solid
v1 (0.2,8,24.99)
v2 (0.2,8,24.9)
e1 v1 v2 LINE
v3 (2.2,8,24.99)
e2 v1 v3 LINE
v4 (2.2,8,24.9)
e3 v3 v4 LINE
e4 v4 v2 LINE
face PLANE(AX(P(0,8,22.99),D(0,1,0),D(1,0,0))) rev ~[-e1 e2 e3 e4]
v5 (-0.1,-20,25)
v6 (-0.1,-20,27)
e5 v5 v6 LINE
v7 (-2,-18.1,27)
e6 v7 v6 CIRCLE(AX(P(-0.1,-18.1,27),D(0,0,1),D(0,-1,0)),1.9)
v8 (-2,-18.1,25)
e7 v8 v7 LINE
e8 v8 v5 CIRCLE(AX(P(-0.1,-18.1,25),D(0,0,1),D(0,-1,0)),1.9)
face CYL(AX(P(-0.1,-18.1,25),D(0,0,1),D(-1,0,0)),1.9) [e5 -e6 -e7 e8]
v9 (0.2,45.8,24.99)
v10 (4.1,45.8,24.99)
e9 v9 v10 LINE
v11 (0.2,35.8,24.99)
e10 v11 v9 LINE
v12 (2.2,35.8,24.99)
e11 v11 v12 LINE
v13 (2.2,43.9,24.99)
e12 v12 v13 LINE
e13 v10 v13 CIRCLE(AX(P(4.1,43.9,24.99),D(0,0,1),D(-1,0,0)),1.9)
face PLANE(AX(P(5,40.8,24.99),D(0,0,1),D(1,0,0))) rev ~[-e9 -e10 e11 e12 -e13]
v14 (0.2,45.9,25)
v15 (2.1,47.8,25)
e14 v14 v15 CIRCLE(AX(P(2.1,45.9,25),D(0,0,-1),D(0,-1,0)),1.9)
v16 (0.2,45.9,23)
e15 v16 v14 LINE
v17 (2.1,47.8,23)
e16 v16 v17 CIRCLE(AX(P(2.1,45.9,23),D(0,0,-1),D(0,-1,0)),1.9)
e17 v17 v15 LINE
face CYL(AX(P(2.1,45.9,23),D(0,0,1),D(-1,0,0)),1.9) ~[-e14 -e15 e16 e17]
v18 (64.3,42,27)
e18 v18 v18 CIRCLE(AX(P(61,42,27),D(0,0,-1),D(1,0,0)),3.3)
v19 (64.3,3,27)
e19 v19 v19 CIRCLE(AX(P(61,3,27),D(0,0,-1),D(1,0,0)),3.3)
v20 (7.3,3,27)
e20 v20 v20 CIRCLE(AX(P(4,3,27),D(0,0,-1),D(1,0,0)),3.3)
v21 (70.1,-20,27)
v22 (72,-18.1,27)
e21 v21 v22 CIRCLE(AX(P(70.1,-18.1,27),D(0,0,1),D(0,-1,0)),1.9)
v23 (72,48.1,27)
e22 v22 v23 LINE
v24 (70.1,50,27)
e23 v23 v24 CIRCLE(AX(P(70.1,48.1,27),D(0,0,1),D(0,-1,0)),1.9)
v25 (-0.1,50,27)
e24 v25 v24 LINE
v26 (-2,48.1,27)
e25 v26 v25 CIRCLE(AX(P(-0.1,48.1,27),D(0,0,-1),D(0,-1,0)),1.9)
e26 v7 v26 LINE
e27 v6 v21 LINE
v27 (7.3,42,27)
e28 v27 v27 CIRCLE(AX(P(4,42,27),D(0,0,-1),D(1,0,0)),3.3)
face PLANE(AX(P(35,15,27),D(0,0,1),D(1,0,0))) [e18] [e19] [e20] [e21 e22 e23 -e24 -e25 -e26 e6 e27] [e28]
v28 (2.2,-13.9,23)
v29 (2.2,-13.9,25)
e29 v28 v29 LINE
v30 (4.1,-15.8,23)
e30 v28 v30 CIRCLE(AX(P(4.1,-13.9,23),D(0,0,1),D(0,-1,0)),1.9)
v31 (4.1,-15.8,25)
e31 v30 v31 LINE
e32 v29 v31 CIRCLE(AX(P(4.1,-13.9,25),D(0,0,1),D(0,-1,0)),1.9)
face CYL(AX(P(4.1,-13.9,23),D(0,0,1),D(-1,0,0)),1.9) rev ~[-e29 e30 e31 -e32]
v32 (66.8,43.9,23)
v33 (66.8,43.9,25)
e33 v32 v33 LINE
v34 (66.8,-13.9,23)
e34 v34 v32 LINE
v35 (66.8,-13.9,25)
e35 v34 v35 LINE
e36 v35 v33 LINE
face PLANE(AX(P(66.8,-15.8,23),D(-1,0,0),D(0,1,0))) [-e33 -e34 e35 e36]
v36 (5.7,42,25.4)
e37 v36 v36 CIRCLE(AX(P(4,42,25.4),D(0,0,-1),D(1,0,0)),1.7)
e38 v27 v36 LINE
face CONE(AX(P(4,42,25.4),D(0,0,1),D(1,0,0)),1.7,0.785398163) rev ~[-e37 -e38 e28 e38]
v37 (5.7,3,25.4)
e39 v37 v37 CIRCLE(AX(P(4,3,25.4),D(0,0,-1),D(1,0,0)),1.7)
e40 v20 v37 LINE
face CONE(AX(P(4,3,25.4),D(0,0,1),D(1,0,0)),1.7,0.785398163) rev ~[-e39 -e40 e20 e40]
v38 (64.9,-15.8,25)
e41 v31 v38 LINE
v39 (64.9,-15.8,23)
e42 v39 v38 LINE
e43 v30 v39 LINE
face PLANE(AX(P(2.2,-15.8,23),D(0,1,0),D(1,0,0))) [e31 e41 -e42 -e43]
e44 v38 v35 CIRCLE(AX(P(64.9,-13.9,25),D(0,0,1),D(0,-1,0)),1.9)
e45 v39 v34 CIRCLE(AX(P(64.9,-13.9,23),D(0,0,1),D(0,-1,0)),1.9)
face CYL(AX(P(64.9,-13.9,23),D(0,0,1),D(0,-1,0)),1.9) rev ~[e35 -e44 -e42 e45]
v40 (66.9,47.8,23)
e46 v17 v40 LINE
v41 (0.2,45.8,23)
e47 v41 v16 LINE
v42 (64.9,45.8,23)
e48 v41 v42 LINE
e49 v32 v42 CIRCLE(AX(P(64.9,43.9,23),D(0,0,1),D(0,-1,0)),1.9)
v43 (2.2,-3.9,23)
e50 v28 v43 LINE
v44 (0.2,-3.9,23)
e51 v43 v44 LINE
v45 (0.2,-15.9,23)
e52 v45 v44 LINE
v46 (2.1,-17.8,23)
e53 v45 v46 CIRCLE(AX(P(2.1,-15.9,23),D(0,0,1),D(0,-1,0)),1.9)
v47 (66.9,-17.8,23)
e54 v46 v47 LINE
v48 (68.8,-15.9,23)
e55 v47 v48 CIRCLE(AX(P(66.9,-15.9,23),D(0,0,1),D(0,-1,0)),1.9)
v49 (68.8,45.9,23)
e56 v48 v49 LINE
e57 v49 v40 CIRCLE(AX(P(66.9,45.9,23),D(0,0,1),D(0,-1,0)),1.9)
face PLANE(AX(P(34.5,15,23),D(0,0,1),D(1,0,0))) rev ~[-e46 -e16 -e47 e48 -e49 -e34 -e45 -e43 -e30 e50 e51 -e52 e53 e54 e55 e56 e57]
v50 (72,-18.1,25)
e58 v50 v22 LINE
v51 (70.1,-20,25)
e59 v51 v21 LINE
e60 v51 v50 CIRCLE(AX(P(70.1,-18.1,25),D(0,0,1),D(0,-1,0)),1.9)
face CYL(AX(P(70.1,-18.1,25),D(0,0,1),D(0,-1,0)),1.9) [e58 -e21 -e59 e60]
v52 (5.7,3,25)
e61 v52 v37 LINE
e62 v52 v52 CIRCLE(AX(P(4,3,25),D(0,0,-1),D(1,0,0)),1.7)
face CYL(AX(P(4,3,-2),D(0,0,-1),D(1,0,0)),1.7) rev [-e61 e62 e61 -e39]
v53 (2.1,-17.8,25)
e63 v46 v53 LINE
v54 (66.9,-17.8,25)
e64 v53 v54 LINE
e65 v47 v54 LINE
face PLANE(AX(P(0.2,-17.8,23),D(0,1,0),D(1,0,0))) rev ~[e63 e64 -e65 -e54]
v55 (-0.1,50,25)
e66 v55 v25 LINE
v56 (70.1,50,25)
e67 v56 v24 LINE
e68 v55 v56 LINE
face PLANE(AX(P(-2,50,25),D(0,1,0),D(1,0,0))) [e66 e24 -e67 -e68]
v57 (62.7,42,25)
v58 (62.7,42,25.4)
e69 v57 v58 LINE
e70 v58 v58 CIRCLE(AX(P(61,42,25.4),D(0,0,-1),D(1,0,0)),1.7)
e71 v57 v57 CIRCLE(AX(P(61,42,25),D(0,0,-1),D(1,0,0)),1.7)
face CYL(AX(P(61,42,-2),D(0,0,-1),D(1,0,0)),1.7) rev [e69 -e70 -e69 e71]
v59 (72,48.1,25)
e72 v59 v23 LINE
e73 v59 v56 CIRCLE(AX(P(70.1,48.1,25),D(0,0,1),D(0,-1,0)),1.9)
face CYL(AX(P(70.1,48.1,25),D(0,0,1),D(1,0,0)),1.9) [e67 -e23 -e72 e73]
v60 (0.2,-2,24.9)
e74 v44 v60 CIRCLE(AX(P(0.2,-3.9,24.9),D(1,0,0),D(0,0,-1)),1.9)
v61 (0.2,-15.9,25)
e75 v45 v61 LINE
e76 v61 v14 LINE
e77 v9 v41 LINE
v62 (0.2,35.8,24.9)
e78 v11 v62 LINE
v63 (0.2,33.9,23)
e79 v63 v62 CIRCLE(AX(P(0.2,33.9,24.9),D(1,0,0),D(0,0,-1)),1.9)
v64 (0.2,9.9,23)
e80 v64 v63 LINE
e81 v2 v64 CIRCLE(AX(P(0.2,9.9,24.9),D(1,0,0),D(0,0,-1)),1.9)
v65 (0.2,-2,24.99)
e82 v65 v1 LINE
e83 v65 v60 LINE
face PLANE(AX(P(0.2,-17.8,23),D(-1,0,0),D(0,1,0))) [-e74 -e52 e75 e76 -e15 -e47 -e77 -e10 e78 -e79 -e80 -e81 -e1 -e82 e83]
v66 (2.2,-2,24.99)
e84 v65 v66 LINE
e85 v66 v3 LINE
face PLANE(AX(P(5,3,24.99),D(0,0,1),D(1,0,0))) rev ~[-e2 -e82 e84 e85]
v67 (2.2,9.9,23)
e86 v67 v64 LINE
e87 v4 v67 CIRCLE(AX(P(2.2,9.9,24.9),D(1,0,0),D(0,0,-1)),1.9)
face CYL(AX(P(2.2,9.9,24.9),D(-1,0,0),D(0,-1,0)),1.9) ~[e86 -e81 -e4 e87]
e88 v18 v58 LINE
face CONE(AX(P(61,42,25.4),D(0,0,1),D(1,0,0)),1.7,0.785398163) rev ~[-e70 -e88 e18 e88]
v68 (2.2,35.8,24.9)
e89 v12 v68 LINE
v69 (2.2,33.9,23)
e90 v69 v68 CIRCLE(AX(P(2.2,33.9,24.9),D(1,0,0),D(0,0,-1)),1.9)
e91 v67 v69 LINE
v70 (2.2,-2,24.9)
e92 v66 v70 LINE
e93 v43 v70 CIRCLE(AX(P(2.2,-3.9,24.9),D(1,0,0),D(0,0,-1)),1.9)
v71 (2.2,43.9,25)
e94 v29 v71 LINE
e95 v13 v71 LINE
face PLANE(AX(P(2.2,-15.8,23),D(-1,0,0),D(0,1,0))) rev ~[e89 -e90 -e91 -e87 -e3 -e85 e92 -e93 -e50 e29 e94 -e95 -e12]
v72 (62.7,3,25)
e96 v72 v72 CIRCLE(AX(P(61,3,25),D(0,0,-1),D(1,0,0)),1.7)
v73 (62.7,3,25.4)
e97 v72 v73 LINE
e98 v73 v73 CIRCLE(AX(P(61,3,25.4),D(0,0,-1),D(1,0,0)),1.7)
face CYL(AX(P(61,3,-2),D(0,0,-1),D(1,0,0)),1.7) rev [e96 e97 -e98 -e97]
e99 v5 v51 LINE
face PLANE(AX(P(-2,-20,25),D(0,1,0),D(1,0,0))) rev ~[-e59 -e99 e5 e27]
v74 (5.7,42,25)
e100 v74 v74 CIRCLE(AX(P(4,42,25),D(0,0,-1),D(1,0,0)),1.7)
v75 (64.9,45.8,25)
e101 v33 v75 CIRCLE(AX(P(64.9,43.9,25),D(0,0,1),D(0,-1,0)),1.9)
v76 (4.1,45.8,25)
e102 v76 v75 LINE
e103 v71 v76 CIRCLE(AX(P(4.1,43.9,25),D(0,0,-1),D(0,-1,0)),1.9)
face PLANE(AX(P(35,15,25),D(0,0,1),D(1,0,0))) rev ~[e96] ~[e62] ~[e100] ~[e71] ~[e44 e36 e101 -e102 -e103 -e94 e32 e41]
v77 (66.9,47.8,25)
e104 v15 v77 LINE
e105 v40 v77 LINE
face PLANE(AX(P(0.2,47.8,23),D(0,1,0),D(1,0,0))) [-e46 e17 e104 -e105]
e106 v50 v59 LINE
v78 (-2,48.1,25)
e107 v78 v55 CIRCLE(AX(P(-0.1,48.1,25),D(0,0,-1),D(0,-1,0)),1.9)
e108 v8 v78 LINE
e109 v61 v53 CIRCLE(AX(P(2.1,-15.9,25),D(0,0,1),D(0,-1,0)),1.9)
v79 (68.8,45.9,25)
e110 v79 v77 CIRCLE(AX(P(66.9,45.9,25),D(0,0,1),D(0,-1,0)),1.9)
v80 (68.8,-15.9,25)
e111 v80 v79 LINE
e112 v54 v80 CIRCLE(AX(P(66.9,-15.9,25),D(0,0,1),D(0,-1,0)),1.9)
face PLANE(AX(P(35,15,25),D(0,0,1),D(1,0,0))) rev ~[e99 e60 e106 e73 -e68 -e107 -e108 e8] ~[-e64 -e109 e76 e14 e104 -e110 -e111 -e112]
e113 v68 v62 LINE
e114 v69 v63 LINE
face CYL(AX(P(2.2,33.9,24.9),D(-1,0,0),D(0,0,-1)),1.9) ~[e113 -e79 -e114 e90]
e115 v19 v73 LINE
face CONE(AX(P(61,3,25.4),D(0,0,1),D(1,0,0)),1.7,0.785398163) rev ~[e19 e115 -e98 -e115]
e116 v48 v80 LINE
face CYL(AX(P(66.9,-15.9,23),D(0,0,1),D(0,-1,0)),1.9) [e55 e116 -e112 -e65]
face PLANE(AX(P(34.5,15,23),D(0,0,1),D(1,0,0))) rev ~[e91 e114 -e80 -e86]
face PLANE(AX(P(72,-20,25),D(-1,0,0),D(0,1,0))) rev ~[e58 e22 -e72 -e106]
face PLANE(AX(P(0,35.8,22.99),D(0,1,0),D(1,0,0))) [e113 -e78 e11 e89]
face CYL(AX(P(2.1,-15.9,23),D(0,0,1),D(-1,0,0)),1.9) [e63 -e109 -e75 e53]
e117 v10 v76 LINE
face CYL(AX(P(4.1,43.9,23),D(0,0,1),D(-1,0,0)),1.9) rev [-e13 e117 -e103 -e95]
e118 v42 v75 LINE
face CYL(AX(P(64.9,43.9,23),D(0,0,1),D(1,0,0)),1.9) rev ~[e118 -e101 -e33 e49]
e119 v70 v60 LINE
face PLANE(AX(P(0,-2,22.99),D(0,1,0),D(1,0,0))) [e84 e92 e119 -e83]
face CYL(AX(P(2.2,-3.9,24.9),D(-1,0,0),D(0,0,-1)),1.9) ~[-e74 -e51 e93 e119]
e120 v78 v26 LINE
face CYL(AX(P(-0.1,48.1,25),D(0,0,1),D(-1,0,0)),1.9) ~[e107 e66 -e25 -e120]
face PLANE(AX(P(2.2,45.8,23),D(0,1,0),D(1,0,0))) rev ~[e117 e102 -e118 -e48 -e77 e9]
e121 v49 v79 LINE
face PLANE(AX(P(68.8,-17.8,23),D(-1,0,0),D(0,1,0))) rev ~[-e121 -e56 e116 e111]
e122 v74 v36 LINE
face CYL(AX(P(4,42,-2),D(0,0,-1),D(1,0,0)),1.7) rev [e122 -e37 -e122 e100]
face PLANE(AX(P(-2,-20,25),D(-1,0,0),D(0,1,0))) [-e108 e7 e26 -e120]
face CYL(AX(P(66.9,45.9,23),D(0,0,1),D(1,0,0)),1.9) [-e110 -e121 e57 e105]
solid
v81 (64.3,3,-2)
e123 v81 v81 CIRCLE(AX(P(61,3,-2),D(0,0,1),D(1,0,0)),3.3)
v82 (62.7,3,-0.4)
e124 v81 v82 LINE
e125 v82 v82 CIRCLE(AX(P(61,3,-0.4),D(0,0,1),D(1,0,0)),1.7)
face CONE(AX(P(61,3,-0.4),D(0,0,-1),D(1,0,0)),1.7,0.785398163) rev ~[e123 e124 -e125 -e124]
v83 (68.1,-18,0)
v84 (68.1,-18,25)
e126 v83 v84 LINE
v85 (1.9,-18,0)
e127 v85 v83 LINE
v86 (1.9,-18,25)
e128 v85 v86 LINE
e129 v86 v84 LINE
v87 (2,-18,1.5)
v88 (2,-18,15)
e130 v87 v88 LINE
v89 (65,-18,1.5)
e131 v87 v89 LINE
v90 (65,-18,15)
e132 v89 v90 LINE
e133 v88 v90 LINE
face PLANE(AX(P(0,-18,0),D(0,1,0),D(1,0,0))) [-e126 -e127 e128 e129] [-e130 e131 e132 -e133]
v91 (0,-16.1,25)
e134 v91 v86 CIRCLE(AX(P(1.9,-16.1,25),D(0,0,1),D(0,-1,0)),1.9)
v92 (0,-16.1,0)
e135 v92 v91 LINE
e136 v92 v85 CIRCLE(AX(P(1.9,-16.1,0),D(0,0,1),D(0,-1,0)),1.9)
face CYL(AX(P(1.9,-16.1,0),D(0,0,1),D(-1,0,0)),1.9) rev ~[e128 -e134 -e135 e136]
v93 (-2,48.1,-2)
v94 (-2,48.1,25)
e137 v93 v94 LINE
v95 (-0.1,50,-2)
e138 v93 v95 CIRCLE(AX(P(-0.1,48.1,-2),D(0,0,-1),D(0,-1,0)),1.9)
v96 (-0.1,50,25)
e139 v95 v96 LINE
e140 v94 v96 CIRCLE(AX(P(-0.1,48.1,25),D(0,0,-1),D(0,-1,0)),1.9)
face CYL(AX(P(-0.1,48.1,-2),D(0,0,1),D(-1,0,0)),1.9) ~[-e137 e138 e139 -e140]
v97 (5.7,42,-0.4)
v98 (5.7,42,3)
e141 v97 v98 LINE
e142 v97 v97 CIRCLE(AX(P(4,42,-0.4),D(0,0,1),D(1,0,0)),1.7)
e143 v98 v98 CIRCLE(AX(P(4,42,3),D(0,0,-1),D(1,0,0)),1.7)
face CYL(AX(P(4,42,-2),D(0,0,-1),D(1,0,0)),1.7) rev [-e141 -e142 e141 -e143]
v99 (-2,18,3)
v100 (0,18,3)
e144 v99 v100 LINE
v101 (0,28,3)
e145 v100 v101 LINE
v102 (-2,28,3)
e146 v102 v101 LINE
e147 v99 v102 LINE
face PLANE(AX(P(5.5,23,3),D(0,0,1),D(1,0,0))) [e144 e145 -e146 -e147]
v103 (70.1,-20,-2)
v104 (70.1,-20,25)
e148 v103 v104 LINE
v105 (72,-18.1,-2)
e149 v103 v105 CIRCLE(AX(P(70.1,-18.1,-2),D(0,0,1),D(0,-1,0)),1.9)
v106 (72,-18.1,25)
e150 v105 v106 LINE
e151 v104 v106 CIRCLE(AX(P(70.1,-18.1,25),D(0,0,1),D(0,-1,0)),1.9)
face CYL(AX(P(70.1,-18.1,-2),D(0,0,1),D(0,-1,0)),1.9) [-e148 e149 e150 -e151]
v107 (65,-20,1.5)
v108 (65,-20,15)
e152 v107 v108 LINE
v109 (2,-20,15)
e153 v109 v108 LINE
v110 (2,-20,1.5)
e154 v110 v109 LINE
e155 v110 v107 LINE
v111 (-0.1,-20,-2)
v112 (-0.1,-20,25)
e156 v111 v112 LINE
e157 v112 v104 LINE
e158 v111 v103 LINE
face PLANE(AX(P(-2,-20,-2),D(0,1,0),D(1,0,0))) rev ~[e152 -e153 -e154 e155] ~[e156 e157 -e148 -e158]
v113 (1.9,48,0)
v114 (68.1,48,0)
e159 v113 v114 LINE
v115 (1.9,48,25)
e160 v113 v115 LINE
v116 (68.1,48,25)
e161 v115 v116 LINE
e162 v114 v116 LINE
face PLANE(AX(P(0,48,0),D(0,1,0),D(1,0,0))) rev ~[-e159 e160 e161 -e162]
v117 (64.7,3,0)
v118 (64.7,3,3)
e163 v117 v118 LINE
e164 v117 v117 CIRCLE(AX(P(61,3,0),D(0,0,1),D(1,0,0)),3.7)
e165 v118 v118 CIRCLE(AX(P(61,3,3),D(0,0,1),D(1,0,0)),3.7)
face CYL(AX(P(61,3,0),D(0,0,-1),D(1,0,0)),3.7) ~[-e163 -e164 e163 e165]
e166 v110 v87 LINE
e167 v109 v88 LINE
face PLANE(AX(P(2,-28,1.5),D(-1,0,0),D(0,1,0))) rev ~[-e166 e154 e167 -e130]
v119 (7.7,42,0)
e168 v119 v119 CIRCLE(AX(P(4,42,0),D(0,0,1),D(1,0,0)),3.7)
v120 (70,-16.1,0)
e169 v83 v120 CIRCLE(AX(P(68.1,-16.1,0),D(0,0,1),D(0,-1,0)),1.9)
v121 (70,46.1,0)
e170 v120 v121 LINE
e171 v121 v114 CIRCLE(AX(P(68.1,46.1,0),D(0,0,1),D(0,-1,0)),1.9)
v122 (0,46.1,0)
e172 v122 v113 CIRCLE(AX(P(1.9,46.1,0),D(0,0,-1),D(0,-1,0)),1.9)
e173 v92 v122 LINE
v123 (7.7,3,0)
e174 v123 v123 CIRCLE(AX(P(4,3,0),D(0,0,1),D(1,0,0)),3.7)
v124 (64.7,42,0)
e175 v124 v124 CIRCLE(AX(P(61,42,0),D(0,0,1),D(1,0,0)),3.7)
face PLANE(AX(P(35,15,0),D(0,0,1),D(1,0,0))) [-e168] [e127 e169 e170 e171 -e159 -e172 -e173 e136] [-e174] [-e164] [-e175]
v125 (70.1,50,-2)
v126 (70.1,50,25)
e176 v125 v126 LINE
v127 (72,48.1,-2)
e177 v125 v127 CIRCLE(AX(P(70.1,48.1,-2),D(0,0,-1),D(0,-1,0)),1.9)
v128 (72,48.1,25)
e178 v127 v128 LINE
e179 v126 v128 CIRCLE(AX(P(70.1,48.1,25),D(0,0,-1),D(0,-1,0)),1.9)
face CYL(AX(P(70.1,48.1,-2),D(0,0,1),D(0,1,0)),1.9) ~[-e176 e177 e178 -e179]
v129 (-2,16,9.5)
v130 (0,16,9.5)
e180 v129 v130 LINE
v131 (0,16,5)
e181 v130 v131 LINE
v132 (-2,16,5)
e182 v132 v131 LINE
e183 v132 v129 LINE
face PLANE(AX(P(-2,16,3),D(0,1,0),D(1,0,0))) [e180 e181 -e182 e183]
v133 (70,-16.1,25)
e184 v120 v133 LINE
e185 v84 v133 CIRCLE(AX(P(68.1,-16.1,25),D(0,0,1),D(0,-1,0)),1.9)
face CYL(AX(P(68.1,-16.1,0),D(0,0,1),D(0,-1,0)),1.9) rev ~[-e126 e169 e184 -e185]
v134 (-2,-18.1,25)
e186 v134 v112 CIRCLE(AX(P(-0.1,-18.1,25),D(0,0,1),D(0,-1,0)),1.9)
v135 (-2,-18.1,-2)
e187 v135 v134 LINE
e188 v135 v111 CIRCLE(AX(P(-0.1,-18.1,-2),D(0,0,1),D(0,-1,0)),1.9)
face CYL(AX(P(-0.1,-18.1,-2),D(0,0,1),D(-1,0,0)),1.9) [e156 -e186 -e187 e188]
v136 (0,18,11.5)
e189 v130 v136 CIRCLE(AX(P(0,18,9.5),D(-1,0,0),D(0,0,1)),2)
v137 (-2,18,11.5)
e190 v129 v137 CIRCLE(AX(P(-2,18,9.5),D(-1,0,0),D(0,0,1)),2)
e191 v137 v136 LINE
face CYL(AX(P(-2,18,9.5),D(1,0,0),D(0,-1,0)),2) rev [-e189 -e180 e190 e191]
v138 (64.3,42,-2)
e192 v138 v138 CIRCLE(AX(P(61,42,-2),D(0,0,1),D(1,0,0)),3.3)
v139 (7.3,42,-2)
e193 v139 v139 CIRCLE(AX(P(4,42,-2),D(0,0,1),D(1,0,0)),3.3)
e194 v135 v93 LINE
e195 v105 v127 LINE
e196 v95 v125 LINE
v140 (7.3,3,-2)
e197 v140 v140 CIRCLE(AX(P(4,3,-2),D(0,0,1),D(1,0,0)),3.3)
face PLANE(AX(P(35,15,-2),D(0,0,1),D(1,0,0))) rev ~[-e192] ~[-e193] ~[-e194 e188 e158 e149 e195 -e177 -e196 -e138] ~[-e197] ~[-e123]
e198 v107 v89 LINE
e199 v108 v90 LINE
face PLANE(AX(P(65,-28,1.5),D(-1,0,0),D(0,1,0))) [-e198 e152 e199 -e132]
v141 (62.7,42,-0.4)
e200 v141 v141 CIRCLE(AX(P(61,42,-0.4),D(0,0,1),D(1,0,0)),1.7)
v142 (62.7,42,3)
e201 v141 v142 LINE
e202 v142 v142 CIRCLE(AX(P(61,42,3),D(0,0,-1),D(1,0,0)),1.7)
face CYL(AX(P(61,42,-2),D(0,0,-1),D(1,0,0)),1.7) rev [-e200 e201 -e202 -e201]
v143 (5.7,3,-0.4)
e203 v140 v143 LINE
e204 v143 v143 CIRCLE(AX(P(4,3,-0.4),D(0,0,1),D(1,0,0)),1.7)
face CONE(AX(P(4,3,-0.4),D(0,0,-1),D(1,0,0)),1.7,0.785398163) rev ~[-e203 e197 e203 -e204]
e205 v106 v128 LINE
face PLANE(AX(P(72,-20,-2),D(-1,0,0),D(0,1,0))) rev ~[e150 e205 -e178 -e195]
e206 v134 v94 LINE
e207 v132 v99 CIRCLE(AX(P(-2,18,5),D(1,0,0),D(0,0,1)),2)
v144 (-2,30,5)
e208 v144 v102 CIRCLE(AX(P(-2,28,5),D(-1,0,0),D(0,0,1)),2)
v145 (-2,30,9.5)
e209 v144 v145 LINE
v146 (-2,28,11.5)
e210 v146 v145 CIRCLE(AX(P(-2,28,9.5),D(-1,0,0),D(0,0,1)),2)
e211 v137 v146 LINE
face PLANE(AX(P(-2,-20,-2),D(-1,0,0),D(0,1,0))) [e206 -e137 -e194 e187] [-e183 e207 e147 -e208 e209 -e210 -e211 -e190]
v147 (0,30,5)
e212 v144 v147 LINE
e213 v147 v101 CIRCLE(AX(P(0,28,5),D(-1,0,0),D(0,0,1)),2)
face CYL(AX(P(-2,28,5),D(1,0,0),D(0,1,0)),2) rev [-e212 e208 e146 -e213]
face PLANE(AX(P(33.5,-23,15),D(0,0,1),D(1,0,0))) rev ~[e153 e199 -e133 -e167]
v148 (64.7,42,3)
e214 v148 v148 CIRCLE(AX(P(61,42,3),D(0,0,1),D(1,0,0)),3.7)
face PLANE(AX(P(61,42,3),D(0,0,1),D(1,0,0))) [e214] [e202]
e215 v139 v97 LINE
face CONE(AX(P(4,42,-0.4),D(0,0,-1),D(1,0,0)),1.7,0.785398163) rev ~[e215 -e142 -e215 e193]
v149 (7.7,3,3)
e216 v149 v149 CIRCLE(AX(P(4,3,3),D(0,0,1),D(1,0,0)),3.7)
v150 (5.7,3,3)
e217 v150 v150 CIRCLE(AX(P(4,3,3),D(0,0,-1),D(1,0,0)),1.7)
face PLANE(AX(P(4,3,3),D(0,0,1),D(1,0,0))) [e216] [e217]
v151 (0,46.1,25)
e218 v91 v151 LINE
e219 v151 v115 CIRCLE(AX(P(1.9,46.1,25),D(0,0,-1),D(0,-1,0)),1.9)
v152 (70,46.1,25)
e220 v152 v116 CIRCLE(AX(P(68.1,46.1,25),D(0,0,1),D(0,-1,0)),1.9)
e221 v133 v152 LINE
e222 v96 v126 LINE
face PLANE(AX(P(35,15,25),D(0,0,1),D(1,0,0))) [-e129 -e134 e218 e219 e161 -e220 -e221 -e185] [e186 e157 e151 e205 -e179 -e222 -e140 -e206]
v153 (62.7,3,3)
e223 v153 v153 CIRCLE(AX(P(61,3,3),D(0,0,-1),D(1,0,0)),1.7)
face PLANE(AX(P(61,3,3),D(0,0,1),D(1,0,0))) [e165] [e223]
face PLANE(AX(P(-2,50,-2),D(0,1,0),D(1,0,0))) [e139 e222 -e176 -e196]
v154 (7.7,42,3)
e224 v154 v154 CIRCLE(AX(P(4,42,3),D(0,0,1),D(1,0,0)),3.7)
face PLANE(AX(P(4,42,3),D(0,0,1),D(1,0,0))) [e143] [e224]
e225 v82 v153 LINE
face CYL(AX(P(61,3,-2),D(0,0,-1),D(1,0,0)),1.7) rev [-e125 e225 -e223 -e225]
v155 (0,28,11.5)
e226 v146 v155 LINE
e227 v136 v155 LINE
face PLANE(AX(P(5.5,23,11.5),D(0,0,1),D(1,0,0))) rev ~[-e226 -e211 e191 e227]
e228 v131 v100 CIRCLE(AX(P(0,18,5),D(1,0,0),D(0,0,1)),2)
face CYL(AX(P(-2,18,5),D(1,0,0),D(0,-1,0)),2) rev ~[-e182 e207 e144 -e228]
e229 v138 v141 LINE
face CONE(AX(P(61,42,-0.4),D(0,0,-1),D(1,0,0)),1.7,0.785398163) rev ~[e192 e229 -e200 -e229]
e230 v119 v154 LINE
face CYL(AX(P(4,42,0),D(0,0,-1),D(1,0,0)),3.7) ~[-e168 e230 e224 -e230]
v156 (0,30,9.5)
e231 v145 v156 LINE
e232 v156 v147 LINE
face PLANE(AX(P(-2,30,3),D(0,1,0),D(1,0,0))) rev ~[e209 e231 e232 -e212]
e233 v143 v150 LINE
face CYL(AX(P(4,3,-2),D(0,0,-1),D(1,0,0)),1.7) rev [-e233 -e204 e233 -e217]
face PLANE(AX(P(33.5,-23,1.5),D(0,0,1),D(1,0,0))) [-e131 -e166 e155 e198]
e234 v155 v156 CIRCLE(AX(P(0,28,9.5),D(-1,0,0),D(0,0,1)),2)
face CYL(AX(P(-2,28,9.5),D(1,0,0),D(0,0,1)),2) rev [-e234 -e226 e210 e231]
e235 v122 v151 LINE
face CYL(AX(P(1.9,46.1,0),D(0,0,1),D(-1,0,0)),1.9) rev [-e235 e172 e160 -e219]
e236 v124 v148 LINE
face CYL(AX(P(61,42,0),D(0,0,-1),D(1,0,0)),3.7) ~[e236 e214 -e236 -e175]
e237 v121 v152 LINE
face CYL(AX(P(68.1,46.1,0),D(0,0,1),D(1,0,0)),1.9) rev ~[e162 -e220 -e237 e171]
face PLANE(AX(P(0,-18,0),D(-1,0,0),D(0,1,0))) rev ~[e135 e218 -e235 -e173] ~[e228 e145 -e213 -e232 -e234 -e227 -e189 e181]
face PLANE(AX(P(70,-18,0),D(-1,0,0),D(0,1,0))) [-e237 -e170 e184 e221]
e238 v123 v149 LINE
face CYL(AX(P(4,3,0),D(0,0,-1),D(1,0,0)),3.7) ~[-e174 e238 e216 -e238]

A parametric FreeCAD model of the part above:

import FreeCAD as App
import Part
import Sketcher

V = App.Vector
Q = App.Units.Quantity


def edges_at(feature, points):
    """Names of the edges that pass closest to the given points."""
    edges = feature.Shape.Edges
    near = lambda p: min(range(len(edges)), key=lambda i: edges[i].distToShape(Part.Vertex(*p))[0])
    return sorted({f"Edge{near(p) + 1}" for p in points})

doc = App.newDocument("Part")
body = doc.addObject("PartDesign::Body", "Body")

# Sketch on XY plane
sketch1 = doc.addObject("Sketcher::SketchObject", "Sketch")
body.addObject(sketch1)
sketch1.AttachmentSupport = (doc.XY_Plane, [""])
sketch1.MapMode = "FlatFace"
sketch1.AttachmentOffset = App.Placement(V(0, 0, 1.5), App.Rotation())
sketch1.addGeometry([
    Part.LineSegment(V(2, -18, 0), V(2, -28, 0)),
    Part.LineSegment(V(2, -28, 0), V(65, -28, 0)),
    Part.LineSegment(V(65, -28, 0), V(65, -18, 0)),
    Part.LineSegment(V(65, -18, 0), V(2, -18, 0)),
], False)
sketch1.addConstraint([
    Sketcher.Constraint("Coincident", 0, 2, 1, 1),
    Sketcher.Constraint("Coincident", 1, 2, 2, 1),
    Sketcher.Constraint("Coincident", 2, 2, 3, 1),
    Sketcher.Constraint("Coincident", 3, 2, 0, 1),
    Sketcher.Constraint("Vertical", 0),
    Sketcher.Constraint("Horizontal", 1),
    Sketcher.Constraint("Vertical", 2),
    Sketcher.Constraint("Horizontal", 3),
    Sketcher.Constraint("DistanceX", 1, 1, 1, 2, Q("63 mm")),
    Sketcher.Constraint("DistanceY", 0, 2, 0, 1, Q("10 mm")),
    Sketcher.Constraint("DistanceX", -1, 1, 0, 2, Q("2 mm")),
    Sketcher.Constraint("DistanceY", 0, 2, -1, 1, Q("28 mm")),
])
pad1 = doc.addObject("PartDesign::Pad", "Pad")
body.addObject(pad1)
pad1.Profile = sketch1
pad1.Length = 13.5
body2 = doc.addObject("PartDesign::Body", "Body001")

# Sketch on XY plane
sketch2 = doc.addObject("Sketcher::SketchObject", "Sketch001")
body2.addObject(sketch2)
sketch2.AttachmentSupport = (doc.getObject("XY_Plane001"), [""])
sketch2.MapMode = "FlatFace"
sketch2.AttachmentOffset = App.Placement(V(0, 0, 3), App.Rotation())
sketch2.addGeometry([
    Part.LineSegment(V(-2, 30, 0), V(-2, 16, 0)),
    Part.LineSegment(V(-2, 16, 0), V(13, 16, 0)),
    Part.LineSegment(V(13, 16, 0), V(13, 30, 0)),
    Part.LineSegment(V(13, 30, 0), V(-2, 30, 0)),
], False)
sketch2.addConstraint([
    Sketcher.Constraint("Coincident", 0, 2, 1, 1),
    Sketcher.Constraint("Coincident", 1, 2, 2, 1),
    Sketcher.Constraint("Coincident", 2, 2, 3, 1),
    Sketcher.Constraint("Coincident", 3, 2, 0, 1),
    Sketcher.Constraint("Vertical", 0),
    Sketcher.Constraint("Horizontal", 1),
    Sketcher.Constraint("Vertical", 2),
    Sketcher.Constraint("Horizontal", 3),
    Sketcher.Constraint("DistanceX", 1, 1, 1, 2, Q("15 mm")),
    Sketcher.Constraint("DistanceY", 0, 2, 0, 1, Q("14 mm")),
    Sketcher.Constraint("DistanceX", 0, 2, -1, 1, Q("2 mm")),
    Sketcher.Constraint("DistanceY", -1, 1, 0, 2, Q("16 mm")),
])
pad2 = doc.addObject("PartDesign::Pad", "Pad001")
body2.addObject(pad2)
pad2.Profile = sketch2
pad2.Length = 8.5
body3 = doc.addObject("PartDesign::Body", "Body002")

# Sketch on XY plane
sketch3 = doc.addObject("Sketcher::SketchObject", "Sketch002")
body3.addObject(sketch3)
sketch3.AttachmentSupport = (doc.getObject("XY_Plane002"), [""])
sketch3.MapMode = "FlatFace"
sketch3.AttachmentOffset = App.Placement(V(0, 0, -2), App.Rotation())
sketch3.addGeometry(Part.Circle(V(4, 42, 0), V(0, 0, 1), 1.7), False)
sketch3.addConstraint([
    Sketcher.Constraint("Diameter", 0, Q("3.4 mm")),
    Sketcher.Constraint("DistanceX", -1, 1, 0, 3, Q("4 mm")),
    Sketcher.Constraint("DistanceY", -1, 1, 0, 3, Q("42 mm")),
])
pad3 = doc.addObject("PartDesign::Pad", "Pad002")
body3.addObject(pad3)
pad3.Profile = sketch3
pad3.Length = 35
body4 = doc.addObject("PartDesign::Body", "Body003")

# Sketch on XY plane
sketch4 = doc.addObject("Sketcher::SketchObject", "Sketch003")
body4.addObject(sketch4)
sketch4.AttachmentSupport = (doc.getObject("XY_Plane003"), [""])
sketch4.MapMode = "FlatFace"
sketch4.AttachmentOffset = App.Placement(V(0, 0, -2), App.Rotation())
sketch4.addGeometry(Part.Circle(V(61, 42, 0), V(0, 0, 1), 1.7), False)
sketch4.addConstraint([
    Sketcher.Constraint("Diameter", 0, Q("3.4 mm")),
    Sketcher.Constraint("DistanceX", -1, 1, 0, 3, Q("61 mm")),
    Sketcher.Constraint("DistanceY", -1, 1, 0, 3, Q("42 mm")),
])
pad4 = doc.addObject("PartDesign::Pad", "Pad003")
body4.addObject(pad4)
pad4.Profile = sketch4
pad4.Length = 33
body5 = doc.addObject("PartDesign::Body", "Body004")

# Sketch on XY plane
sketch5 = doc.addObject("Sketcher::SketchObject", "Sketch004")
body5.addObject(sketch5)
sketch5.AttachmentSupport = (doc.getObject("XY_Plane004"), [""])
sketch5.MapMode = "FlatFace"
sketch5.AttachmentOffset = App.Placement(V(0, 0, -2), App.Rotation())
sketch5.addGeometry(Part.Circle(V(61, 3, 0), V(0, 0, 1), 1.7), False)
sketch5.addConstraint([
    Sketcher.Constraint("Diameter", 0, Q("3.4 mm")),
    Sketcher.Constraint("DistanceX", -1, 1, 0, 3, Q("61 mm")),
    Sketcher.Constraint("DistanceY", -1, 1, 0, 3, Q("3 mm")),
])
pad5 = doc.addObject("PartDesign::Pad", "Pad004")
body5.addObject(pad5)
pad5.Profile = sketch5
pad5.Length = 35
body6 = doc.addObject("PartDesign::Body", "Body005")

# Sketch on XY plane
sketch6 = doc.addObject("Sketcher::SketchObject", "Sketch005")
body6.addObject(sketch6)
sketch6.AttachmentSupport = (doc.getObject("XY_Plane005"), [""])
sketch6.MapMode = "FlatFace"
sketch6.AttachmentOffset = App.Placement(V(0, 0, -2), App.Rotation())
sketch6.addGeometry(Part.Circle(V(4, 3, 0), V(0, 0, 1), 1.7), False)
sketch6.addConstraint([
    Sketcher.Constraint("Diameter", 0, Q("3.4 mm")),
    Sketcher.Constraint("DistanceX", -1, 1, 0, 3, Q("4 mm")),
    Sketcher.Constraint("DistanceY", -1, 1, 0, 3, Q("3 mm")),
])
pad6 = doc.addObject("PartDesign::Pad", "Pad005")
body6.addObject(pad6)
pad6.Profile = sketch6
pad6.Length = 35
body7 = doc.addObject("PartDesign::Body", "Body006")

# Sketch on XY plane
sketch7 = doc.addObject("Sketcher::SketchObject", "Sketch006")
body7.addObject(sketch7)
sketch7.AttachmentSupport = (doc.getObject("XY_Plane006"), [""])
sketch7.MapMode = "FlatFace"
sketch7.addGeometry(Part.Circle(V(4, 42, 0), V(0, 0, 1), 3.7), False)
sketch7.addConstraint([
    Sketcher.Constraint("Diameter", 0, Q("7.4 mm")),
    Sketcher.Constraint("DistanceX", -1, 1, 0, 3, Q("4 mm")),
    Sketcher.Constraint("DistanceY", -1, 1, 0, 3, Q("42 mm")),
])
pad7 = doc.addObject("PartDesign::Pad", "Pad006")
body7.addObject(pad7)
pad7.Profile = sketch7
pad7.Length = 3
body8 = doc.addObject("PartDesign::Body", "Body007")

# Sketch on XY plane
sketch8 = doc.addObject("Sketcher::SketchObject", "Sketch007")
body8.addObject(sketch8)
sketch8.AttachmentSupport = (doc.getObject("XY_Plane007"), [""])
sketch8.MapMode = "FlatFace"
sketch8.addGeometry(Part.Circle(V(61, 3, 0), V(0, 0, 1), 3.7), False)
sketch8.addConstraint([
    Sketcher.Constraint("Diameter", 0, Q("7.4 mm")),
    Sketcher.Constraint("DistanceX", -1, 1, 0, 3, Q("61 mm")),
    Sketcher.Constraint("DistanceY", -1, 1, 0, 3, Q("3 mm")),
])
pad8 = doc.addObject("PartDesign::Pad", "Pad007")
body8.addObject(pad8)
pad8.Profile = sketch8
pad8.Length = 3
body9 = doc.addObject("PartDesign::Body", "Body008")

# Sketch on XY plane
sketch9 = doc.addObject("Sketcher::SketchObject", "Sketch008")
body9.addObject(sketch9)
sketch9.AttachmentSupport = (doc.getObject("XY_Plane008"), [""])
sketch9.MapMode = "FlatFace"
sketch9.addGeometry(Part.Circle(V(61, 42, 0), V(0, 0, 1), 3.7), False)
sketch9.addConstraint([
    Sketcher.Constraint("Diameter", 0, Q("7.4 mm")),
    Sketcher.Constraint("DistanceX", -1, 1, 0, 3, Q("61 mm")),
    Sketcher.Constraint("DistanceY", -1, 1, 0, 3, Q("42 mm")),
])
pad9 = doc.addObject("PartDesign::Pad", "Pad008")
body9.addObject(pad9)
pad9.Profile = sketch9
pad9.Length = 3
body10 = doc.addObject("PartDesign::Body", "Body009")

# Sketch on XY plane
sketch10 = doc.addObject("Sketcher::SketchObject", "Sketch009")
body10.addObject(sketch10)
sketch10.AttachmentSupport = (doc.getObject("XY_Plane009"), [""])
sketch10.MapMode = "FlatFace"
sketch10.addGeometry(Part.Circle(V(4, 3, 0), V(0, 0, 1), 3.7), False)
sketch10.addConstraint([
    Sketcher.Constraint("Diameter", 0, Q("7.4 mm")),
    Sketcher.Constraint("DistanceX", -1, 1, 0, 3, Q("4 mm")),
    Sketcher.Constraint("DistanceY", -1, 1, 0, 3, Q("3 mm")),
])
pad10 = doc.addObject("PartDesign::Pad", "Pad009")
body10.addObject(pad10)
pad10.Profile = sketch10
pad10.Length = 3
body11 = doc.addObject("PartDesign::Body", "Body010")

# Sketch on XY plane
sketch11 = doc.addObject("Sketcher::SketchObject", "Sketch010")
body11.addObject(sketch11)
sketch11.AttachmentSupport = (doc.getObject("XY_Plane010"), [""])
sketch11.MapMode = "FlatFace"
sketch11.addGeometry([
    Part.LineSegment(V(0, 48, 0), V(0, -18, 0)),
    Part.LineSegment(V(0, -18, 0), V(70, -18, 0)),
    Part.LineSegment(V(70, -18, 0), V(70, 48, 0)),
    Part.LineSegment(V(70, 48, 0), V(0, 48, 0)),
], False)
sketch11.addConstraint([
    Sketcher.Constraint("Coincident", 0, 2, 1, 1),
    Sketcher.Constraint("Coincident", 1, 2, 2, 1),
    Sketcher.Constraint("Coincident", 2, 2, 3, 1),
    Sketcher.Constraint("Coincident", 3, 2, 0, 1),
    Sketcher.Constraint("Vertical", 0),
    Sketcher.Constraint("Horizontal", 1),
    Sketcher.Constraint("Vertical", 2),
    Sketcher.Constraint("Horizontal", 3),
    Sketcher.Constraint("PointOnObject", 0, 2, -2),
    Sketcher.Constraint("DistanceX", 1, 1, 1, 2, Q("70 mm")),
    Sketcher.Constraint("DistanceY", 0, 2, 0, 1, Q("66 mm")),
    Sketcher.Constraint("DistanceY", 0, 2, -1, 1, Q("18 mm")),
])
pad11 = doc.addObject("PartDesign::Pad", "Pad010")
body11.addObject(pad11)
pad11.Profile = sketch11
pad11.Length = 25
body12 = doc.addObject("PartDesign::Body", "Body011")

# Sketch on XY plane
sketch12 = doc.addObject("Sketcher::SketchObject", "Sketch011")
body12.addObject(sketch12)
sketch12.AttachmentSupport = (doc.getObject("XY_Plane011"), [""])
sketch12.MapMode = "FlatFace"
sketch12.AttachmentOffset = App.Placement(V(0, 0, -2), App.Rotation())
sketch12.addGeometry([
    Part.LineSegment(V(-2, 50, 0), V(-2, -20, 0)),
    Part.LineSegment(V(-2, -20, 0), V(72, -20, 0)),
    Part.LineSegment(V(72, -20, 0), V(72, 50, 0)),
    Part.LineSegment(V(72, 50, 0), V(-2, 50, 0)),
], False)
sketch12.addConstraint([
    Sketcher.Constraint("Coincident", 0, 2, 1, 1),
    Sketcher.Constraint("Coincident", 1, 2, 2, 1),
    Sketcher.Constraint("Coincident", 2, 2, 3, 1),
    Sketcher.Constraint("Coincident", 3, 2, 0, 1),
    Sketcher.Constraint("Vertical", 0),
    Sketcher.Constraint("Horizontal", 1),
    Sketcher.Constraint("Vertical", 2),
    Sketcher.Constraint("Horizontal", 3),
    Sketcher.Constraint("DistanceX", 1, 1, 1, 2, Q("74 mm")),
    Sketcher.Constraint("DistanceY", 0, 2, 0, 1, Q("70 mm")),
    Sketcher.Constraint("DistanceX", 0, 2, -1, 1, Q("2 mm")),
    Sketcher.Constraint("DistanceY", 0, 2, -1, 1, Q("20 mm")),
])
pad12 = doc.addObject("PartDesign::Pad", "Pad011")
body12.addObject(pad12)
pad12.Profile = sketch12
pad12.Length = 27
doc.recompute()

boolean = doc.addObject("PartDesign::Boolean", "Boolean")
body12.addObject(boolean)
boolean.Type = "Cut"
boolean.addObjects([body11])
doc.recompute()

boolean2 = doc.addObject("PartDesign::Boolean", "Boolean001")
body12.addObject(boolean2)
boolean2.Type = "Fuse"
boolean2.addObjects([body10])
doc.recompute()

boolean3 = doc.addObject("PartDesign::Boolean", "Boolean002")
body12.addObject(boolean3)
boolean3.Type = "Fuse"
boolean3.addObjects([body9])
doc.recompute()

boolean4 = doc.addObject("PartDesign::Boolean", "Boolean003")
body12.addObject(boolean4)
boolean4.Type = "Fuse"
boolean4.addObjects([body8])
doc.recompute()

boolean5 = doc.addObject("PartDesign::Boolean", "Boolean004")
body12.addObject(boolean5)
boolean5.Type = "Fuse"
boolean5.addObjects([body7])
doc.recompute()

body13 = doc.addObject("PartDesign::Body", "Body012")
body13.BaseFeature = body6
boolean6 = doc.addObject("PartDesign::Boolean", "Boolean005")
body12.addObject(boolean6)
boolean6.Type = "Cut"
boolean6.addObjects([body13])
doc.recompute()

body14 = doc.addObject("PartDesign::Body", "Body013")
body14.BaseFeature = body5
boolean7 = doc.addObject("PartDesign::Boolean", "Boolean006")
body12.addObject(boolean7)
boolean7.Type = "Cut"
boolean7.addObjects([body14])
doc.recompute()

body15 = doc.addObject("PartDesign::Body", "Body014")
body15.BaseFeature = body4
boolean8 = doc.addObject("PartDesign::Boolean", "Boolean007")
body12.addObject(boolean8)
boolean8.Type = "Cut"
boolean8.addObjects([body15])
doc.recompute()

body16 = doc.addObject("PartDesign::Body", "Body015")
body16.BaseFeature = body3
boolean9 = doc.addObject("PartDesign::Boolean", "Boolean008")
body12.addObject(boolean9)
boolean9.Type = "Cut"
boolean9.addObjects([body16])
doc.recompute()

boolean10 = doc.addObject("PartDesign::Boolean", "Boolean009")
body12.addObject(boolean10)
boolean10.Type = "Cut"
boolean10.addObjects([body2])
doc.recompute()

boolean11 = doc.addObject("PartDesign::Boolean", "Boolean010")
body12.addObject(boolean11)
boolean11.Type = "Cut"
boolean11.addObjects([body])
doc.recompute()

fillet = doc.addObject("PartDesign::Fillet", "Fillet")
body12.addObject(fillet)
fillet.Base = (boolean11, edges_at(boolean11, [
    (-1, 16, 3),
    (-1, 16, 11.5),
    (-1, 30, 3),
    (-1, 30, 11.5),
]))
fillet.Radius = 2
doc.recompute()

fillet2 = doc.addObject("PartDesign::Fillet", "Fillet001")
body12.addObject(fillet2)
fillet2.Base = (fillet, edges_at(fillet, [
    (-2, -20, 11.5),
    (-2, 50, 11.5),
    (72, -20, 11.5),
    (72, 50, 11.5),
    (0, -18, 12.5),
    (0, 48, 12.5),
    (70, -18, 12.5),
    (70, 48, 12.5),
]))
fillet2.Radius = 1.9
doc.recompute()

chamfer = doc.addObject("PartDesign::Chamfer", "Chamfer")
body12.addObject(chamfer)
chamfer.Base = (fillet2, edges_at(fillet2, [
    (2.3, 3, -2),
    (59.3, 3, -2),
    (2.3, 42, -2),
    (59.3, 42, -2),
]))
chamfer.Size = 1.6
body17 = doc.addObject("PartDesign::Body", "Body016")

# Sketch on XY plane
sketch13 = doc.addObject("Sketcher::SketchObject", "Sketch012")
body17.addObject(sketch13)
sketch13.AttachmentSupport = (doc.getObject("XY_Plane016"), [""])
sketch13.MapMode = "FlatFace"
sketch13.AttachmentOffset = App.Placement(V(0, 0, 22.99), App.Rotation())
sketch13.addGeometry([
    Part.LineSegment(V(0, 46, 0), V(0, 36, 0)),
    Part.LineSegment(V(0, 36, 0), V(10, 36, 0)),
    Part.LineSegment(V(10, 36, 0), V(10, 46, 0)),
    Part.LineSegment(V(10, 46, 0), V(0, 46, 0)),
], False)
sketch13.addConstraint([
    Sketcher.Constraint("Coincident", 0, 2, 1, 1),
    Sketcher.Constraint("Coincident", 1, 2, 2, 1),
    Sketcher.Constraint("Coincident", 2, 2, 3, 1),
    Sketcher.Constraint("Coincident", 3, 2, 0, 1),
    Sketcher.Constraint("Vertical", 0),
    Sketcher.Constraint("Horizontal", 1),
    Sketcher.Constraint("Vertical", 2),
    Sketcher.Constraint("Horizontal", 3),
    Sketcher.Constraint("PointOnObject", 0, 2, -2),
    Sketcher.Constraint("Equal", 3, 0),
    Sketcher.Constraint("DistanceX", 1, 1, 1, 2, Q("10 mm")),
    Sketcher.Constraint("DistanceY", -1, 1, 0, 2, Q("35.8 mm")),
])
pad13 = doc.addObject("PartDesign::Pad", "Pad012")
body17.addObject(pad13)
pad13.Profile = sketch13
pad13.Length = 2
body18 = doc.addObject("PartDesign::Body", "Body017")

# Sketch on XY plane
sketch14 = doc.addObject("Sketcher::SketchObject", "Sketch013")
body18.addObject(sketch14)
sketch14.AttachmentSupport = (doc.getObject("XY_Plane017"), [""])
sketch14.MapMode = "FlatFace"
sketch14.AttachmentOffset = App.Placement(V(0, 0, 22.99), App.Rotation())
sketch14.addGeometry([
    Part.LineSegment(V(0, 8, 0), V(0, -2, 0)),
    Part.LineSegment(V(0, -2, 0), V(10, -2, 0)),
    Part.LineSegment(V(10, -2, 0), V(10, 8, 0)),
    Part.LineSegment(V(10, 8, 0), V(0, 8, 0)),
], False)
sketch14.addConstraint([
    Sketcher.Constraint("Coincident", 0, 2, 1, 1),
    Sketcher.Constraint("Coincident", 1, 2, 2, 1),
    Sketcher.Constraint("Coincident", 2, 2, 3, 1),
    Sketcher.Constraint("Coincident", 3, 2, 0, 1),
    Sketcher.Constraint("Vertical", 0),
    Sketcher.Constraint("Horizontal", 1),
    Sketcher.Constraint("Vertical", 2),
    Sketcher.Constraint("Horizontal", 3),
    Sketcher.Constraint("PointOnObject", 0, 2, -2),
    Sketcher.Constraint("Equal", 3, 0),
    Sketcher.Constraint("DistanceX", 1, 1, 1, 2, Q("10 mm")),
    Sketcher.Constraint("DistanceY", 0, 2, -1, 1, Q("2 mm")),
])
pad14 = doc.addObject("PartDesign::Pad", "Pad013")
body18.addObject(pad14)
pad14.Profile = sketch14
pad14.Length = 2
body19 = doc.addObject("PartDesign::Body", "Body018")

# Sketch on XY plane
sketch15 = doc.addObject("Sketcher::SketchObject", "Sketch014")
body19.addObject(sketch15)
sketch15.AttachmentSupport = (doc.getObject("XY_Plane018"), [""])
sketch15.MapMode = "FlatFace"
sketch15.AttachmentOffset = App.Placement(V(0, 0, 23), App.Rotation())
sketch15.addGeometry([
    Part.LineSegment(V(2, 46, 0), V(2, -16, 0)),
    Part.LineSegment(V(2, -16, 0), V(67, -16, 0)),
    Part.LineSegment(V(67, -16, 0), V(67, 46, 0)),
    Part.LineSegment(V(67, 46, 0), V(2, 46, 0)),
], False)
sketch15.addConstraint([
    Sketcher.Constraint("Coincident", 0, 2, 1, 1),
    Sketcher.Constraint("Coincident", 1, 2, 2, 1),
    Sketcher.Constraint("Coincident", 2, 2, 3, 1),
    Sketcher.Constraint("Coincident", 3, 2, 0, 1),
    Sketcher.Constraint("Vertical", 0),
    Sketcher.Constraint("Horizontal", 1),
    Sketcher.Constraint("Vertical", 2),
    Sketcher.Constraint("Horizontal", 3),
    Sketcher.Constraint("DistanceX", 1, 1, 1, 2, Q("64.6 mm")),
    Sketcher.Constraint("DistanceY", 0, 2, 0, 1, Q("61.6 mm")),
    Sketcher.Constraint("DistanceX", -1, 1, 0, 2, Q("2.2 mm")),
    Sketcher.Constraint("DistanceY", 0, 2, -1, 1, Q("15.8 mm")),
])
pad15 = doc.addObject("PartDesign::Pad", "Pad014")
body19.addObject(pad15)
pad15.Profile = sketch15
pad15.Length = 2
doc.recompute()

fillet3 = doc.addObject("PartDesign::Fillet", "Fillet002")
body19.addObject(fillet3)
fillet3.Base = (pad15, edges_at(pad15, [
    (2.2, -15.8, 24),
    (2.2, 45.8, 24),
    (66.8, -15.8, 24),
    (66.8, 45.8, 24),
]))
fillet3.Radius = 1.9
body20 = doc.addObject("PartDesign::Body", "Body019")

# Sketch on XY plane
sketch16 = doc.addObject("Sketcher::SketchObject", "Sketch015")
body20.addObject(sketch16)
sketch16.AttachmentSupport = (doc.getObject("XY_Plane019"), [""])
sketch16.MapMode = "FlatFace"
sketch16.AttachmentOffset = App.Placement(V(0, 0, 23), App.Rotation())
sketch16.addGeometry([
    Part.LineSegment(V(0, 48, 0), V(0, -18, 0)),
    Part.LineSegment(V(0, -18, 0), V(69, -18, 0)),
    Part.LineSegment(V(69, -18, 0), V(69, 48, 0)),
    Part.LineSegment(V(69, 48, 0), V(0, 48, 0)),
], False)
sketch16.addConstraint([
    Sketcher.Constraint("Coincident", 0, 2, 1, 1),
    Sketcher.Constraint("Coincident", 1, 2, 2, 1),
    Sketcher.Constraint("Coincident", 2, 2, 3, 1),
    Sketcher.Constraint("Coincident", 3, 2, 0, 1),
    Sketcher.Constraint("Vertical", 0),
    Sketcher.Constraint("Horizontal", 1),
    Sketcher.Constraint("Vertical", 2),
    Sketcher.Constraint("Horizontal", 3),
    Sketcher.Constraint("DistanceX", 1, 1, 1, 2, Q("68.6 mm")),
    Sketcher.Constraint("DistanceY", 0, 2, 0, 1, Q("65.6 mm")),
    Sketcher.Constraint("DistanceX", -1, 1, 0, 2, Q("0.2 mm")),
    Sketcher.Constraint("DistanceY", 0, 2, -1, 1, Q("17.8 mm")),
])
pad16 = doc.addObject("PartDesign::Pad", "Pad015")
body20.addObject(pad16)
pad16.Profile = sketch16
pad16.Length = 2
doc.recompute()

fillet4 = doc.addObject("PartDesign::Fillet", "Fillet003")
body20.addObject(fillet4)
fillet4.Base = (pad16, edges_at(pad16, [
    (0.2, -17.8, 24),
    (0.2, 47.8, 24),
    (68.8, -17.8, 24),
    (68.8, 47.8, 24),
]))
fillet4.Radius = 1.9
doc.recompute()

boolean12 = doc.addObject("PartDesign::Boolean", "Boolean011")
body20.addObject(boolean12)
boolean12.Type = "Cut"
boolean12.addObjects([body19])
body21 = doc.addObject("PartDesign::Body", "Body020")

# Sketch on XY plane
sketch17 = doc.addObject("Sketcher::SketchObject", "Sketch016")
body21.addObject(sketch17)
sketch17.AttachmentSupport = (doc.getObject("XY_Plane020"), [""])
sketch17.MapMode = "FlatFace"
sketch17.AttachmentOffset = App.Placement(V(0, 0, 25), App.Rotation())
sketch17.addGeometry([
    Part.LineSegment(V(-2, 50, 0), V(-2, -20, 0)),
    Part.LineSegment(V(-2, -20, 0), V(72, -20, 0)),
    Part.LineSegment(V(72, -20, 0), V(72, 50, 0)),
    Part.LineSegment(V(72, 50, 0), V(-2, 50, 0)),
], False)
sketch17.addConstraint([
    Sketcher.Constraint("Coincident", 0, 2, 1, 1),
    Sketcher.Constraint("Coincident", 1, 2, 2, 1),
    Sketcher.Constraint("Coincident", 2, 2, 3, 1),
    Sketcher.Constraint("Coincident", 3, 2, 0, 1),
    Sketcher.Constraint("Vertical", 0),
    Sketcher.Constraint("Horizontal", 1),
    Sketcher.Constraint("Vertical", 2),
    Sketcher.Constraint("Horizontal", 3),
    Sketcher.Constraint("DistanceX", 1, 1, 1, 2, Q("74 mm")),
    Sketcher.Constraint("DistanceY", 0, 2, 0, 1, Q("70 mm")),
    Sketcher.Constraint("DistanceX", 0, 2, -1, 1, Q("2 mm")),
    Sketcher.Constraint("DistanceY", 0, 2, -1, 1, Q("20 mm")),
])
pad17 = doc.addObject("PartDesign::Pad", "Pad016")
body21.addObject(pad17)
pad17.Profile = sketch17
pad17.Length = 2
doc.recompute()

fillet5 = doc.addObject("PartDesign::Fillet", "Fillet004")
body21.addObject(fillet5)
fillet5.Base = (pad17, edges_at(pad17, [
    (-2, -20, 26),
    (-2, 50, 26),
    (72, -20, 26),
    (72, 50, 26),
]))
fillet5.Radius = 1.9
doc.recompute()

boolean13 = doc.addObject("PartDesign::Boolean", "Boolean012")
body21.addObject(boolean13)
boolean13.Type = "Fuse"
boolean13.addObjects([body20])
doc.recompute()

boolean14 = doc.addObject("PartDesign::Boolean", "Boolean013")
body21.addObject(boolean14)
boolean14.Type = "Cut"
boolean14.addObjects([body6])
doc.recompute()

boolean15 = doc.addObject("PartDesign::Boolean", "Boolean014")
body21.addObject(boolean15)
boolean15.Type = "Cut"
boolean15.addObjects([body5])
doc.recompute()

boolean16 = doc.addObject("PartDesign::Boolean", "Boolean015")
body21.addObject(boolean16)
boolean16.Type = "Cut"
boolean16.addObjects([body4])
doc.recompute()

boolean17 = doc.addObject("PartDesign::Boolean", "Boolean016")
body21.addObject(boolean17)
boolean17.Type = "Cut"
boolean17.addObjects([body3])
doc.recompute()

chamfer2 = doc.addObject("PartDesign::Chamfer", "Chamfer001")
body21.addObject(chamfer2)
chamfer2.Base = (boolean17, edges_at(boolean17, [
    (2.3, 3, 27),
    (59.3, 3, 27),
    (2.3, 42, 27),
    (59.3, 42, 27),
]))
chamfer2.Size = 1.6
doc.recompute()

boolean18 = doc.addObject("PartDesign::Boolean", "Boolean017")
body21.addObject(boolean18)
boolean18.Type = "Cut"
boolean18.addObjects([body18])
doc.recompute()

boolean19 = doc.addObject("PartDesign::Boolean", "Boolean018")
body21.addObject(boolean19)
boolean19.Type = "Cut"
boolean19.addObjects([body17])
doc.recompute()

fillet6 = doc.addObject("PartDesign::Fillet", "Fillet005")
body21.addObject(fillet6)
fillet6.Base = (boolean19, edges_at(boolean19, [(1.2, -2, 23), (1.2, 35.8, 23), (1.2, 8, 23)]))
fillet6.Radius = 1.9

doc.recompute()
